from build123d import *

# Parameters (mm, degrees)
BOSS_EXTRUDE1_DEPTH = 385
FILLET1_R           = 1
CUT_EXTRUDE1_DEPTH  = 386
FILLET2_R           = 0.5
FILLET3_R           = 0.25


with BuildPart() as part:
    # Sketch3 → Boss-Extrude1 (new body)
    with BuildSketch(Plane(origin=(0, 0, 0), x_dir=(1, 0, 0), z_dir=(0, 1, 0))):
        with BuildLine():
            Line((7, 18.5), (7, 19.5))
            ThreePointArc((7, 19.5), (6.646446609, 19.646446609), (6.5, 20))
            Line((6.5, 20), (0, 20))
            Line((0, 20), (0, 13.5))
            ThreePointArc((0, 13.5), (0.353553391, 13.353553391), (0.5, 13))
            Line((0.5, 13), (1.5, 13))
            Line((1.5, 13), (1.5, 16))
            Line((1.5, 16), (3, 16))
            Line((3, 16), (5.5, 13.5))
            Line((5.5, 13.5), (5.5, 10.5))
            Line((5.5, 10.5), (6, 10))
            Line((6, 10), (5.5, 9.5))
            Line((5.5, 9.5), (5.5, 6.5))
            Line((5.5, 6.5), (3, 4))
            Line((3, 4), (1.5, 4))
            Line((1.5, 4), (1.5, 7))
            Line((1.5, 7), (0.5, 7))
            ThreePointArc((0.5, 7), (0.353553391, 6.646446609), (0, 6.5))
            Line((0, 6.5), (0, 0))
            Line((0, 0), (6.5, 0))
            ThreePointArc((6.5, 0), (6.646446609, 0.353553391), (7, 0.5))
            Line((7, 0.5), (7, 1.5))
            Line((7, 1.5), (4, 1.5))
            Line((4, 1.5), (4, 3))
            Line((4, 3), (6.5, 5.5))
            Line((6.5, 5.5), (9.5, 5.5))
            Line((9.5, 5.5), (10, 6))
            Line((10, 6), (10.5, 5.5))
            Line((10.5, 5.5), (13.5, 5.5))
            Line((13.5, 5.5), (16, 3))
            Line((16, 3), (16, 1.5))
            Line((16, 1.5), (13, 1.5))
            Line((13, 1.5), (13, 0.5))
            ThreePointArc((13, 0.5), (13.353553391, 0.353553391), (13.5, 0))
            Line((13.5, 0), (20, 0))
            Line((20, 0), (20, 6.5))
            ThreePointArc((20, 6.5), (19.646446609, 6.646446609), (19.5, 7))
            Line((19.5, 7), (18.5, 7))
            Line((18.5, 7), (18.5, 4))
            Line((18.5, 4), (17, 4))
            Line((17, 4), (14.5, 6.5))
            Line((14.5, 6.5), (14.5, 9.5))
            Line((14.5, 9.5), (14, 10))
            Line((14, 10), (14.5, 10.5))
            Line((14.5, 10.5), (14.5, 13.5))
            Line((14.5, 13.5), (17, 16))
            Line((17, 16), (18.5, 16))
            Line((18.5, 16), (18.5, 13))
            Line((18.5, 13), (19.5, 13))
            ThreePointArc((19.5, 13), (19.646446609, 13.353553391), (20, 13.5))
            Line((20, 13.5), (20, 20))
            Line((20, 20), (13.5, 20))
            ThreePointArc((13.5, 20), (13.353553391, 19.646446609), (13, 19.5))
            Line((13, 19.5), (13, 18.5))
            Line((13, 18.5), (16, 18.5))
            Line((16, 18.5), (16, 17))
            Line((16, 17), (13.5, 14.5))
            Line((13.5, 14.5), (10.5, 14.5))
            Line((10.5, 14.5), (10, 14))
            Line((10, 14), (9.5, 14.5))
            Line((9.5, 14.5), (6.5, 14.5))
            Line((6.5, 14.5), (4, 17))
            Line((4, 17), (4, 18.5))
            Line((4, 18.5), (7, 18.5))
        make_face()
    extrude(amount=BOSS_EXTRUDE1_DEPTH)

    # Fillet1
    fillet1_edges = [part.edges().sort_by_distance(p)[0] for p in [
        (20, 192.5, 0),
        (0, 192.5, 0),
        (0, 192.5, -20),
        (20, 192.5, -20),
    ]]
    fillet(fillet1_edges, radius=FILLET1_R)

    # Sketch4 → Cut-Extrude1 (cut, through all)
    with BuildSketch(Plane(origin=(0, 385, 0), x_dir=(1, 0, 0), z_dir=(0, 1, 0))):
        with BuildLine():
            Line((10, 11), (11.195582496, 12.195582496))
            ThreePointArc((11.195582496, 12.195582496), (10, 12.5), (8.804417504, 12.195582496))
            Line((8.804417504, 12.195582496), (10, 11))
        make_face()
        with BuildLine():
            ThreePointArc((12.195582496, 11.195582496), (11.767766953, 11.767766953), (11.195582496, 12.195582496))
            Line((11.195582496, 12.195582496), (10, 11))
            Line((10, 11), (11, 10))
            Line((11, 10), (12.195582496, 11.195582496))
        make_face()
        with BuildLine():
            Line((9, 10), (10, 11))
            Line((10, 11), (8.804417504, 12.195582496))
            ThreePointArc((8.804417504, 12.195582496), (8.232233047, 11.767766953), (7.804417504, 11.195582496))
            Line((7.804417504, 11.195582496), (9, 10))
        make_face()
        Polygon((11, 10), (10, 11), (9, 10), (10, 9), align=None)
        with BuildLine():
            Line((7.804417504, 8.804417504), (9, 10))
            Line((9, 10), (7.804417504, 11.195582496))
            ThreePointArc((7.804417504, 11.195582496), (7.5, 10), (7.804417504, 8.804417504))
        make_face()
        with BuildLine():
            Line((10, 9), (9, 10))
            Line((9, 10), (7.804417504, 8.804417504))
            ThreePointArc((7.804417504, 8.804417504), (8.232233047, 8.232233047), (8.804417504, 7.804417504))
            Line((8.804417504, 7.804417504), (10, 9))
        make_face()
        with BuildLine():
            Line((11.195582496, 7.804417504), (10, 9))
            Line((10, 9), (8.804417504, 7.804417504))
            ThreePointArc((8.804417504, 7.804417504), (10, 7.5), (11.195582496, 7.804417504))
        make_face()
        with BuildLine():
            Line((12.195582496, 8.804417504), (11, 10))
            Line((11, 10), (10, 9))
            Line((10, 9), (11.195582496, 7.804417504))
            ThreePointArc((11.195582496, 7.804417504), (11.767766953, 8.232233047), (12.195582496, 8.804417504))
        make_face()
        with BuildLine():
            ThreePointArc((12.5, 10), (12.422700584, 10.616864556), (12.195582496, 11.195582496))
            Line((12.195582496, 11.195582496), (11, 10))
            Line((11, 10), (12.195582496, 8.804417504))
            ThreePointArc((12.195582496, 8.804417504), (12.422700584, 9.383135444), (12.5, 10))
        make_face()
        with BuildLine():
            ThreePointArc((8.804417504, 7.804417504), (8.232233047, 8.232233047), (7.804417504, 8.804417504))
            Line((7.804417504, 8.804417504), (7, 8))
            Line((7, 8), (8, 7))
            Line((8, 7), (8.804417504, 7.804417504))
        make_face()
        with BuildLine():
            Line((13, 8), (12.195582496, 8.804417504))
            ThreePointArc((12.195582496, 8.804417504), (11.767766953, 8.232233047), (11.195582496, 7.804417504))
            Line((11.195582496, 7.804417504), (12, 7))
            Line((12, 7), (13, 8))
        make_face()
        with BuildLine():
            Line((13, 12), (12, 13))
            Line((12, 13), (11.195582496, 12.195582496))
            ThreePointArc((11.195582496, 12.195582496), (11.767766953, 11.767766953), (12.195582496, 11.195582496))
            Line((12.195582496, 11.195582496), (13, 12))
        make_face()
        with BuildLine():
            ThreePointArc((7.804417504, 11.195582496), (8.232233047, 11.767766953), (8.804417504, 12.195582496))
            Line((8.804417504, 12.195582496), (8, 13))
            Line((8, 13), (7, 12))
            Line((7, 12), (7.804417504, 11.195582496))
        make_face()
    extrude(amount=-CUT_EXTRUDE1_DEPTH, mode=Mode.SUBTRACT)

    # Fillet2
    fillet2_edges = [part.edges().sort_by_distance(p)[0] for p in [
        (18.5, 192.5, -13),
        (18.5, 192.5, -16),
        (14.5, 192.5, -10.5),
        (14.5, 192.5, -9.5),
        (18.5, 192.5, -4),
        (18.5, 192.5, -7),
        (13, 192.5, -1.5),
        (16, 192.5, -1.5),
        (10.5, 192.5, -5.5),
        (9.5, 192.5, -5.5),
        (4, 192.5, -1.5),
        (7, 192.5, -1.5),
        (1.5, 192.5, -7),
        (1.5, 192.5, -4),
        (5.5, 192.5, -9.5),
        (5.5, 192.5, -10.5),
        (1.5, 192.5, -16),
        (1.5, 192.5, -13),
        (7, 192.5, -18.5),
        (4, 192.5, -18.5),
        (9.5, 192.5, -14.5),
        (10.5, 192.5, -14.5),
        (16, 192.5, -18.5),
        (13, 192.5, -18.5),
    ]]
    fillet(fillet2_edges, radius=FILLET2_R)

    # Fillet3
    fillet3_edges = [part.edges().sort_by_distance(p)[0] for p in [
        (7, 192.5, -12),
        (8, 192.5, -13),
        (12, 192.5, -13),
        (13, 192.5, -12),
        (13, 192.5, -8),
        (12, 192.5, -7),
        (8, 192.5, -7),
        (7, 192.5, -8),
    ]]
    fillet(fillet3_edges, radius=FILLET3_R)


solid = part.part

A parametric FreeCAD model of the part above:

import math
import FreeCAD as App
import Part
import Sketcher
from FreeCAD import Vector
Q = App.Units.Quantity


def edges_at(feature, points):
    """Names of the edges that pass closest to the given points."""
    edges = feature.Shape.Edges
    near = lambda p: min(range(len(edges)), key=lambda i: edges[i].distToShape(Part.Vertex(*p))[0])
    return sorted({f"Edge{near(p) + 1}" for p in points})

doc = App.newDocument("Part")
body = doc.addObject("PartDesign::Body", "Body")

# Sketch on XZ plane
sketch1 = body.newObject("Sketcher::SketchObject", "Sketch")
sketch1.AttachmentSupport = (doc.getObject("XZ_Plane"), [""])
sketch1.MapMode = "FlatFace"
sketch1.addGeometry([
    Part.LineSegment(Vector(7, -18.5, 0), Vector(7, -19.5, 0)),  # 0
    Part.ArcOfCircle(Part.Circle(Vector(7, -20, 0), Vector(0, 0, 1), 0.5), math.radians(90), math.radians(180)),  # 1
    Part.LineSegment(Vector(6.5, -20, 0), Vector(0, -20, 0)),  # 2
    Part.LineSegment(Vector(0, -20, 0), Vector(0, -13.5, 0)),  # 3
    Part.ArcOfCircle(Part.Circle(Vector(0, -13, 0), Vector(0, 0, 1), 0.5), math.radians(-90), math.radians(0)),  # 4
    Part.LineSegment(Vector(0.5, -13, 0), Vector(1.5, -13, 0)),  # 5
    Part.LineSegment(Vector(1.5, -13, 0), Vector(1.5, -16, 0)),  # 6
    Part.LineSegment(Vector(1.5, -16, 0), Vector(3, -16, 0)),  # 7
    Part.LineSegment(Vector(3, -16, 0), Vector(5.5, -13.5, 0)),  # 8
    Part.LineSegment(Vector(5.5, -13.5, 0), Vector(5.5, -10.5, 0)),  # 9
    Part.LineSegment(Vector(5.5, -10.5, 0), Vector(6, -10, 0)),  # 10
    Part.LineSegment(Vector(6, -10, 0), Vector(5.5, -9.5, 0)),  # 11
    Part.LineSegment(Vector(5.5, -9.5, 0), Vector(5.5, -6.5, 0)),  # 12
    Part.LineSegment(Vector(5.5, -6.5, 0), Vector(3, -4, 0)),  # 13
    Part.LineSegment(Vector(3, -4, 0), Vector(1.5, -4, 0)),  # 14
    Part.LineSegment(Vector(1.5, -4, 0), Vector(1.5, -7, 0)),  # 15
    Part.LineSegment(Vector(1.5, -7, 0), Vector(0.5, -7, 0)),  # 16
    Part.ArcOfCircle(Part.Circle(Vector(0, -7, 0), Vector(0, 0, 1), 0.5), math.radians(0), math.radians(90)),  # 17
    Part.LineSegment(Vector(0, -6.5, 0), Vector(0, 0, 0)),  # 18
    Part.LineSegment(Vector(0, 0, 0), Vector(6.5, 0, 0)),  # 19
    Part.ArcOfCircle(Part.Circle(Vector(7, 0, 0), Vector(0, 0, 1), 0.5), math.radians(180), math.radians(270)),  # 20
    Part.LineSegment(Vector(7, -0.5, 0), Vector(7, -1.5, 0)),  # 21
    Part.LineSegment(Vector(7, -1.5, 0), Vector(4, -1.5, 0)),  # 22
    Part.LineSegment(Vector(4, -1.5, 0), Vector(4, -3, 0)),  # 23
    Part.LineSegment(Vector(4, -3, 0), Vector(6.5, -5.5, 0)),  # 24
    Part.LineSegment(Vector(6.5, -5.5, 0), Vector(9.5, -5.5, 0)),  # 25
    Part.LineSegment(Vector(9.5, -5.5, 0), Vector(10, -6, 0)),  # 26
    Part.LineSegment(Vector(10, -6, 0), Vector(10.5, -5.5, 0)),  # 27
    Part.LineSegment(Vector(10.5, -5.5, 0), Vector(13.5, -5.5, 0)),  # 28
    Part.LineSegment(Vector(13.5, -5.5, 0), Vector(16, -3, 0)),  # 29
    Part.LineSegment(Vector(16, -3, 0), Vector(16, -1.5, 0)),  # 30
    Part.LineSegment(Vector(16, -1.5, 0), Vector(13, -1.5, 0)),  # 31
    Part.LineSegment(Vector(13, -1.5, 0), Vector(13, -0.5, 0)),  # 32
    Part.ArcOfCircle(Part.Circle(Vector(13, 0, 0), Vector(0, 0, 1), 0.5), math.radians(-90), math.radians(0)),  # 33
    Part.LineSegment(Vector(13.5, 0, 0), Vector(20, 0, 0)),  # 34
    Part.LineSegment(Vector(20, 0, 0), Vector(20, -6.5, 0)),  # 35
    Part.ArcOfCircle(Part.Circle(Vector(20, -7, 0), Vector(0, 0, 1), 0.5), math.radians(90), math.radians(180)),  # 36
    Part.LineSegment(Vector(19.5, -7, 0), Vector(18.5, -7, 0)),  # 37
    Part.LineSegment(Vector(18.5, -7, 0), Vector(18.5, -4, 0)),  # 38
    Part.LineSegment(Vector(18.5, -4, 0), Vector(17, -4, 0)),  # 39
    Part.LineSegment(Vector(17, -4, 0), Vector(14.5, -6.5, 0)),  # 40
    Part.LineSegment(Vector(14.5, -6.5, 0), Vector(14.5, -9.5, 0)),  # 41
    Part.LineSegment(Vector(14.5, -9.5, 0), Vector(14, -10, 0)),  # 42
    Part.LineSegment(Vector(14, -10, 0), Vector(14.5, -10.5, 0)),  # 43
    Part.LineSegment(Vector(14.5, -10.5, 0), Vector(14.5, -13.5, 0)),  # 44
    Part.LineSegment(Vector(14.5, -13.5, 0), Vector(17, -16, 0)),  # 45
    Part.LineSegment(Vector(17, -16, 0), Vector(18.5, -16, 0)),  # 46
    Part.LineSegment(Vector(18.5, -16, 0), Vector(18.5, -13, 0)),  # 47
    Part.LineSegment(Vector(18.5, -13, 0), Vector(19.5, -13, 0)),  # 48
    Part.ArcOfCircle(Part.Circle(Vector(20, -13, 0), Vector(0, 0, 1), 0.5), math.radians(180), math.radians(270)),  # 49
    Part.LineSegment(Vector(20, -13.5, 0), Vector(20, -20, 0)),  # 50
    Part.LineSegment(Vector(20, -20, 0), Vector(13.5, -20, 0)),  # 51
    Part.ArcOfCircle(Part.Circle(Vector(13, -20, 0), Vector(0, 0, 1), 0.5), math.radians(0), math.radians(90)),  # 52
    Part.LineSegment(Vector(13, -19.5, 0), Vector(13, -18.5, 0)),  # 53
    Part.LineSegment(Vector(13, -18.5, 0), Vector(16, -18.5, 0)),  # 54
    Part.LineSegment(Vector(16, -18.5, 0), Vector(16, -17, 0)),  # 55
    Part.LineSegment(Vector(16, -17, 0), Vector(13.5, -14.5, 0)),  # 56
    Part.LineSegment(Vector(13.5, -14.5, 0), Vector(10.5, -14.5, 0)),  # 57
    Part.LineSegment(Vector(10.5, -14.5, 0), Vector(10, -14, 0)),  # 58
    Part.LineSegment(Vector(10, -14, 0), Vector(9.5, -14.5, 0)),  # 59
    Part.LineSegment(Vector(9.5, -14.5, 0), Vector(6.5, -14.5, 0)),  # 60
    Part.LineSegment(Vector(6.5, -14.5, 0), Vector(4, -17, 0)),  # 61
    Part.LineSegment(Vector(4, -17, 0), Vector(4, -18.5, 0)),  # 62
    Part.LineSegment(Vector(4, -18.5, 0), Vector(7, -18.5, 0)),  # 63
], False)
sketch1.addConstraint([
    Sketcher.Constraint("Coincident", 0, 2, 1, 1),
    Sketcher.Constraint("Coincident", 1, 2, 2, 1),
    Sketcher.Constraint("Coincident", 2, 2, 3, 1),
    Sketcher.Constraint("Coincident", 3, 2, 4, 1),
    Sketcher.Constraint("Coincident", 4, 2, 5, 1),
    Sketcher.Constraint("Coincident", 5, 2, 6, 1),
    Sketcher.Constraint("Coincident", 6, 2, 7, 1),
    Sketcher.Constraint("Coincident", 7, 2, 8, 1),
    Sketcher.Constraint("Coincident", 8, 2, 9, 1),
    Sketcher.Constraint("Coincident", 9, 2, 10, 1),
    Sketcher.Constraint("Coincident", 10, 2, 11, 1),
    Sketcher.Constraint("Coincident", 11, 2, 12, 1),
    Sketcher.Constraint("Coincident", 12, 2, 13, 1),
    Sketcher.Constraint("Coincident", 13, 2, 14, 1),
    Sketcher.Constraint("Coincident", 14, 2, 15, 1),
    Sketcher.Constraint("Coincident", 15, 2, 16, 1),
    Sketcher.Constraint("Coincident", 16, 2, 17, 1),
    Sketcher.Constraint("Coincident", 17, 2, 18, 1),
    Sketcher.Constraint("Coincident", 18, 2, 19, 1),
    Sketcher.Constraint("Coincident", 19, 2, 20, 1),
    Sketcher.Constraint("Coincident", 20, 2, 21, 1),
    Sketcher.Constraint("Coincident", 21, 2, 22, 1),
    Sketcher.Constraint("Coincident", 22, 2, 23, 1),
    Sketcher.Constraint("Coincident", 23, 2, 24, 1),
    Sketcher.Constraint("Coincident", 24, 2, 25, 1),
    Sketcher.Constraint("Coincident", 25, 2, 26, 1),
    Sketcher.Constraint("Coincident", 26, 2, 27, 1),
    Sketcher.Constraint("Coincident", 27, 2, 28, 1),
    Sketcher.Constraint("Coincident", 28, 2, 29, 1),
    Sketcher.Constraint("Coincident", 29, 2, 30, 1),
    Sketcher.Constraint("Coincident", 30, 2, 31, 1),
    Sketcher.Constraint("Coincident", 31, 2, 32, 1),
    Sketcher.Constraint("Coincident", 32, 2, 33, 1),
    Sketcher.Constraint("Coincident", 33, 2, 34, 1),
    Sketcher.Constraint("Coincident", 34, 2, 35, 1),
    Sketcher.Constraint("Coincident", 35, 2, 36, 1),
    Sketcher.Constraint("Coincident", 36, 2, 37, 1),
    Sketcher.Constraint("Coincident", 37, 2, 38, 1),
    Sketcher.Constraint("Coincident", 38, 2, 39, 1),
    Sketcher.Constraint("Coincident", 39, 2, 40, 1),
    Sketcher.Constraint("Coincident", 40, 2, 41, 1),
    Sketcher.Constraint("Coincident", 41, 2, 42, 1),
    Sketcher.Constraint("Coincident", 42, 2, 43, 1),
    Sketcher.Constraint("Coincident", 43, 2, 44, 1),
    Sketcher.Constraint("Coincident", 44, 2, 45, 1),
    Sketcher.Constraint("Coincident", 45, 2, 46, 1),
    Sketcher.Constraint("Coincident", 46, 2, 47, 1),
    Sketcher.Constraint("Coincident", 47, 2, 48, 1),
    Sketcher.Constraint("Coincident", 48, 2, 49, 1),
    Sketcher.Constraint("Coincident", 49, 2, 50, 1),
    Sketcher.Constraint("Coincident", 50, 2, 51, 1),
    Sketcher.Constraint("Coincident", 51, 2, 52, 1),
    Sketcher.Constraint("Coincident", 52, 2, 53, 1),
    Sketcher.Constraint("Coincident", 53, 2, 54, 1),
    Sketcher.Constraint("Coincident", 54, 2, 55, 1),
    Sketcher.Constraint("Coincident", 55, 2, 56, 1),
    Sketcher.Constraint("Coincident", 56, 2, 57, 1),
    Sketcher.Constraint("Coincident", 57, 2, 58, 1),
    Sketcher.Constraint("Coincident", 58, 2, 59, 1),
    Sketcher.Constraint("Coincident", 59, 2, 60, 1),
    Sketcher.Constraint("Coincident", 60, 2, 61, 1),
    Sketcher.Constraint("Coincident", 61, 2, 62, 1),
    Sketcher.Constraint("Coincident", 62, 2, 63, 1),
    Sketcher.Constraint("Coincident", 63, 2, 0, 1),
    Sketcher.Constraint("Vertical", 0),
    Sketcher.Constraint("Horizontal", 2),
    Sketcher.Constraint("Vertical", 3),
    Sketcher.Constraint("Horizontal", 5),
    Sketcher.Constraint("Vertical", 6),
    Sketcher.Constraint("Horizontal", 7),
    Sketcher.Constraint("Vertical", 9),
    Sketcher.Constraint("Vertical", 12),
    Sketcher.Constraint("Horizontal", 14),
    Sketcher.Constraint("Vertical", 15),
    Sketcher.Constraint("Horizontal", 16),
    Sketcher.Constraint("Vertical", 18),
    Sketcher.Constraint("Horizontal", 19),
    Sketcher.Constraint("Vertical", 21),
    Sketcher.Constraint("Horizontal", 22),
    Sketcher.Constraint("Vertical", 23),
    Sketcher.Constraint("Horizontal", 25),
    Sketcher.Constraint("Horizontal", 28),
    Sketcher.Constraint("Vertical", 30),
    Sketcher.Constraint("Horizontal", 31),
    Sketcher.Constraint("Vertical", 32),
    Sketcher.Constraint("Horizontal", 34),
    Sketcher.Constraint("Vertical", 35),
    Sketcher.Constraint("Horizontal", 37),
    Sketcher.Constraint("Vertical", 38),
    Sketcher.Constraint("Horizontal", 39),
    Sketcher.Constraint("Vertical", 41),
    Sketcher.Constraint("Vertical", 44),
    Sketcher.Constraint("Horizontal", 46),
    Sketcher.Constraint("Vertical", 47),
    Sketcher.Constraint("Horizontal", 48),
    Sketcher.Constraint("Vertical", 50),
    Sketcher.Constraint("Horizontal", 51),
    Sketcher.Constraint("Vertical", 53),
    Sketcher.Constraint("Horizontal", 54),
    Sketcher.Constraint("Vertical", 55),
    Sketcher.Constraint("Horizontal", 57),
    Sketcher.Constraint("Horizontal", 60),
    Sketcher.Constraint("Vertical", 62),
    Sketcher.Constraint("Horizontal", 63),
    Sketcher.Constraint("Coincident", 18, 2, -1, 1),
    Sketcher.Constraint("Equal", 1, 4),
    Sketcher.Constraint("Equal", 4, 17),
    Sketcher.Constraint("Equal", 17, 20),
    Sketcher.Constraint("Equal", 20, 33),
    Sketcher.Constraint("Equal", 33, 36),
    Sketcher.Constraint("Equal", 36, 49),
    Sketcher.Constraint("Equal", 49, 52),
    Sketcher.Constraint("PointOnObject", 4, 3, -2),
    Sketcher.Constraint("PointOnObject", 17, 3, -2),
    Sketcher.Constraint("PointOnObject", 20, 3, -1),
    Sketcher.Constraint("PointOnObject", 33, 3, -1),
    Sketcher.Constraint("PointOnObject", 2, 2, -2),
    Sketcher.Constraint("PointOnObject", 33, 2, -1),
    Sketcher.Constraint("Parallel", 8, 10),
    Sketcher.Constraint("Perpendicular", 10, 11),
    Sketcher.Constraint("Parallel", 11, 13),
    Sketcher.Constraint("Parallel", 13, 24),
    Sketcher.Constraint("Parallel", 24, 26),
    Sketcher.Constraint("Perpendicular", 26, 27),
    Sketcher.Constraint("Parallel", 27, 29),
    Sketcher.Constraint("Parallel", 29, 40),
    Sketcher.Constraint("Parallel", 40, 42),
    Sketcher.Constraint("Perpendicular", 42, 43),
    Sketcher.Constraint("Parallel", 43, 45),
    Sketcher.Constraint("Parallel", 45, 56),
    Sketcher.Constraint("Parallel", 56, 58),
    Sketcher.Constraint("Perpendicular", 58, 59),
    Sketcher.Constraint("Parallel", 59, 61),
    Sketcher.Constraint("Horizontal", 17, 3, 36, 3),
    Sketcher.Constraint("Horizontal", 4, 3, 49, 3),
    Sketcher.Constraint("Horizontal", 1, 3, 52, 3),
    Sketcher.Constraint("Horizontal", 52, 3, 1, 2),
    Sketcher.Constraint("Horizontal", 49, 3, 4, 2),
    Sketcher.Constraint("Horizontal", 3, 2, 8, 2),
    Sketcher.Constraint("Horizontal", 36, 3, 15, 2),
    Sketcher.Constraint("Horizontal", 12, 2, 17, 2),
    Sketcher.Constraint("Horizontal", 25, 2, 27, 2),
    Sketcher.Constraint("Horizontal", 23, 2, 29, 2),
    Sketcher.Constraint("Horizontal", 22, 2, 30, 2),
    Sketcher.Constraint("Horizontal", 16, 2, 36, 2),
    Sketcher.Constraint("Horizontal", 14, 2, 38, 2),
    Sketcher.Constraint("Horizontal", 35, 2, 40, 2),
    Sketcher.Constraint("Horizontal", 11, 2, 41, 2),
    Sketcher.Constraint("Horizontal", 10, 2, 42, 2),
    Sketcher.Constraint("Horizontal", 9, 2, 43, 2),
    Sketcher.Constraint("Horizontal", 8, 2, 44, 2),
    Sketcher.Constraint("Horizontal", 7, 2, 45, 2),
    Sketcher.Constraint("Horizontal", 5, 2, 47, 2),
    Sketcher.Constraint("Horizontal", 2, 2, 50, 2),
    Sketcher.Constraint("Horizontal", 57, 2, 59, 2),
    Sketcher.Constraint("Horizontal", 55, 2, 61, 2),
    Sketcher.Constraint("Horizontal", 54, 2, 62, 2),
    Sketcher.Constraint("Vertical", 1, 3, 20, 3),
    Sketcher.Constraint("Vertical", 36, 3, 49, 3),
    Sketcher.Constraint("Vertical", 33, 3, 52, 3),
    Sketcher.Constraint("Vertical", 20, 3, 0, 2),
    Sketcher.Constraint("Vertical", 9, 2, 11, 2),
    Sketcher.Constraint("Vertical", 7, 2, 13, 2),
    Sketcher.Constraint("Vertical", 6, 2, 14, 2),
    Sketcher.Constraint("Vertical", 0, 2, 20, 2),
    Sketcher.Constraint("Vertical", 19, 2, 24, 2),
    Sketcher.Constraint("Vertical", 52, 3, 31, 2),
    Sketcher.Constraint("Vertical", 28, 2, 33, 2),
    Sketcher.Constraint("Vertical", 49, 3, 34, 2),
    Sketcher.Constraint("Vertical", 41, 2, 43, 2),
    Sketcher.Constraint("Vertical", 38, 2, 46, 2),
    Sketcher.Constraint("Vertical", 35, 2, 49, 2),
    Sketcher.Constraint("Vertical", 32, 2, 52, 2),
    Sketcher.Constraint("Vertical", 30, 2, 54, 2),
    Sketcher.Constraint("Vertical", 51, 2, 56, 2),
    Sketcher.Constraint("Vertical", 27, 2, 57, 2),
    Sketcher.Constraint("Vertical", 26, 2, 58, 2),
    Sketcher.Constraint("Vertical", 24, 2, 60, 2),
    Sketcher.Constraint("Equal", 22, 25),
    Sketcher.Constraint("Equal", 25, 28),
    Sketcher.Constraint("Equal", 19, 34),
    Sketcher.Constraint("Equal", 16, 37),
    Sketcher.Constraint("Equal", 14, 39),
    Sketcher.Constraint("Equal", 48, 0),
    Sketcher.Constraint("Equal", 51, 3),
    Sketcher.Constraint("Equal", 63, 6),
    Sketcher.Constraint("Equal", 6, 9),
    Sketcher.Constraint("Equal", 9, 12),
    Sketcher.Constraint("Equal", 3, 18),
    Sketcher.Constraint("Equal", 0, 21),
    Sketcher.Constraint("Equal", 46, 23),
    Sketcher.Constraint("Equal", 30, 55),
    Sketcher.Constraint("Equal", 11, 26),
    Sketcher.Constraint("Radius", 1, Q("0.5 mm")),
    Sketcher.Constraint("DistanceX", 5, 1, 5, 2, Q("1 mm")),
    Sketcher.Constraint("DistanceX", 22, 2, 22, 1, Q("3 mm")),
    Sketcher.Constraint("DistanceX", 2, 2, 2, 1, Q("6.5 mm")),
    Sketcher.Constraint("DistanceX", 7, 1, 7, 2, Q("1.5 mm")),
    Sketcher.Constraint("DistanceY", 1, 3, -1, 1, Q("20 mm")),
])
pad1 = body.newObject("PartDesign::Pad", "Pad")
pad1.Profile = sketch1
pad1.Length = 385
pad1.Reversed = True
doc.recompute()

fillet = body.newObject("PartDesign::Fillet", "Fillet")
fillet.Base = (pad1, edges_at(pad1, [
    (20, 192.5, 0),
    (0, 192.5, 0),
    (0, 192.5, -20),
    (20, 192.5, -20),
]))
fillet.Radius = 1

# Sketch on XZ plane
sketch2 = body.newObject("Sketcher::SketchObject", "Sketch001")
sketch2.AttachmentSupport = (doc.getObject("XZ_Plane"), [""])
sketch2.MapMode = "FlatFace"
sketch2.AttachmentOffset = App.Placement(Vector(0, 0, -385), App.Rotation())
sketch2.addGeometry([
    Part.ArcOfCircle(Part.Circle(Vector(10, -10, 0), Vector(0, 0, 1), 2.5), math.radians(-118.57006), math.radians(-61.42994)),  # 0
    Part.LineSegment(Vector(8.804418, -12.195582, 0), Vector(8, -13, 0)),  # 1
    Part.LineSegment(Vector(8, -13, 0), Vector(7, -12, 0)),  # 2
    Part.LineSegment(Vector(7, -12, 0), Vector(7.804418, -11.195582, 0)),  # 3
    Part.ArcOfCircle(Part.Circle(Vector(10, -10, 0), Vector(0, 0, 1), 2.5), math.radians(151.42994), math.radians(208.57006)),  # 4
    Part.LineSegment(Vector(7.804418, -8.804418, 0), Vector(7, -8, 0)),  # 5
    Part.LineSegment(Vector(7, -8, 0), Vector(8, -7, 0)),  # 6
    Part.LineSegment(Vector(8, -7, 0), Vector(8.804418, -7.804418, 0)),  # 7
    Part.ArcOfCircle(Part.Circle(Vector(10, -10, 0), Vector(0, 0, 1), 2.5), math.radians(61.42994), math.radians(118.57006)),  # 8
    Part.LineSegment(Vector(11.195582, -7.804418, 0), Vector(12, -7, 0)),  # 9
    Part.LineSegment(Vector(12, -7, 0), Vector(13, -8, 0)),  # 10
    Part.LineSegment(Vector(13, -8, 0), Vector(12.195582, -8.804418, 0)),  # 11
    Part.ArcOfCircle(Part.Circle(Vector(10, -10, 0), Vector(0, 0, 1), 2.5), math.radians(0), math.radians(28.57006)),  # 12
    Part.ArcOfCircle(Part.Circle(Vector(10, -10, 0), Vector(0, 0, 1), 2.5), math.radians(-28.57006), math.radians(0)),  # 13
    Part.LineSegment(Vector(12.195582, -11.195582, 0), Vector(13, -12, 0)),  # 14
    Part.LineSegment(Vector(13, -12, 0), Vector(12, -13, 0)),  # 15
    Part.LineSegment(Vector(12, -13, 0), Vector(11.195582, -12.195582, 0)),  # 16
], False)
sketch2.addConstraint([
    Sketcher.Constraint("Coincident", 0, 1, 1, 1),
    Sketcher.Constraint("Coincident", 1, 2, 2, 1),
    Sketcher.Constraint("Coincident", 2, 2, 3, 1),
    Sketcher.Constraint("Coincident", 3, 2, 4, 2),
    Sketcher.Constraint("Coincident", 4, 1, 5, 1),
    Sketcher.Constraint("Coincident", 5, 2, 6, 1),
    Sketcher.Constraint("Coincident", 6, 2, 7, 1),
    Sketcher.Constraint("Coincident", 7, 2, 8, 2),
    Sketcher.Constraint("Coincident", 8, 1, 9, 1),
    Sketcher.Constraint("Coincident", 9, 2, 10, 1),
    Sketcher.Constraint("Coincident", 10, 2, 11, 1),
    Sketcher.Constraint("Coincident", 11, 2, 12, 2),
    Sketcher.Constraint("Tangent", 12, 1, 13, 2),
    Sketcher.Constraint("Coincident", 13, 1, 14, 1),
    Sketcher.Constraint("Coincident", 14, 2, 15, 1),
    Sketcher.Constraint("Coincident", 15, 2, 16, 1),
    Sketcher.Constraint("Coincident", 16, 2, 0, 2),
    Sketcher.Constraint("Coincident", 4, 3, 0, 3),
    Sketcher.Constraint("Coincident", 8, 3, 0, 3),
    Sketcher.Constraint("Coincident", 12, 3, 0, 3),
    Sketcher.Constraint("Equal", 0, 4),
    Sketcher.Constraint("Equal", 4, 8),
    Sketcher.Constraint("Equal", 8, 12),
    Sketcher.Constraint("Equal", 12, 13),
    Sketcher.Constraint("Perpendicular", 1, 2),
    Sketcher.Constraint("Perpendicular", 2, 3),
    Sketcher.Constraint("Perpendicular", 3, 5),
    Sketcher.Constraint("Perpendicular", 5, 6),
    Sketcher.Constraint("Perpendicular", 6, 7),
    Sketcher.Constraint("Perpendicular", 7, 9),
    Sketcher.Constraint("Perpendicular", 9, 10),
    Sketcher.Constraint("Perpendicular", 10, 11),
    Sketcher.Constraint("Perpendicular", 11, 14),
    Sketcher.Constraint("Perpendicular", 14, 15),
    Sketcher.Constraint("Perpendicular", 15, 16),
    Sketcher.Constraint("Horizontal", 7, 2, 8, 1),
    Sketcher.Constraint("Horizontal", 6, 2, 9, 2),
    Sketcher.Constraint("Horizontal", 5, 2, 10, 2),
    Sketcher.Constraint("Horizontal", 4, 1, 11, 2),
    Sketcher.Constraint("Horizontal", 13, 3, 12, 1),
    Sketcher.Constraint("Horizontal", 3, 2, 13, 1),
    Sketcher.Constraint("Horizontal", 2, 2, 14, 2),
    Sketcher.Constraint("Horizontal", 1, 2, 15, 2),
    Sketcher.Constraint("Vertical", 3, 2, 4, 1),
    Sketcher.Constraint("Vertical", 2, 2, 5, 2),
    Sketcher.Constraint("Vertical", 1, 2, 6, 2),
    Sketcher.Constraint("Equal", 1, 3),
    Sketcher.Constraint("Radius", 0, Q("2.5 mm")),
    Sketcher.Constraint("DistanceX", -1, 1, 0, 3, Q("10 mm")),
    Sketcher.Constraint("DistanceY", 0, 3, -1, 1, Q("10 mm")),
    Sketcher.Constraint("DistanceX", -1, 1, 1, 2, Q("8 mm")),
    Sketcher.Constraint("DistanceY", 1, 2, -1, 1, Q("13 mm")),
])
pocket1 = body.newObject("PartDesign::Pocket", "Pocket")
pocket1.Profile = sketch2
pocket1.Type = "ThroughAll"
pocket1.Reversed = True
doc.recompute()

fillet2 = body.newObject("PartDesign::Fillet", "Fillet001")
fillet2.Base = (pocket1, edges_at(pocket1, [
    (18.5, 192.5, -13),
    (18.5, 192.5, -16),
    (14.5, 192.5, -10.5),
    (14.5, 192.5, -9.5),
    (18.5, 192.5, -4),
    (18.5, 192.5, -7),
    (13, 192.5, -1.5),
    (16, 192.5, -1.5),
    (10.5, 192.5, -5.5),
    (9.5, 192.5, -5.5),
    (4, 192.5, -1.5),
    (7, 192.5, -1.5),
    (1.5, 192.5, -7),
    (1.5, 192.5, -4),
    (5.5, 192.5, -9.5),
    (5.5, 192.5, -10.5),
    (1.5, 192.5, -16),
    (1.5, 192.5, -13),
    (7, 192.5, -18.5),
    (4, 192.5, -18.5),
    (9.5, 192.5, -14.5),
    (10.5, 192.5, -14.5),
    (16, 192.5, -18.5),
    (13, 192.5, -18.5),
]))
fillet2.Radius = 0.5
doc.recompute()

fillet3 = body.newObject("PartDesign::Fillet", "Fillet002")
fillet3.Base = (fillet2, edges_at(fillet2, [
    (7, 192.5, -12),
    (8, 192.5, -13),
    (12, 192.5, -13),
    (13, 192.5, -12),
    (13, 192.5, -8),
    (12, 192.5, -7),
    (8, 192.5, -7),
    (7, 192.5, -8),
]))
fillet3.Radius = 0.25

doc.recompute()
